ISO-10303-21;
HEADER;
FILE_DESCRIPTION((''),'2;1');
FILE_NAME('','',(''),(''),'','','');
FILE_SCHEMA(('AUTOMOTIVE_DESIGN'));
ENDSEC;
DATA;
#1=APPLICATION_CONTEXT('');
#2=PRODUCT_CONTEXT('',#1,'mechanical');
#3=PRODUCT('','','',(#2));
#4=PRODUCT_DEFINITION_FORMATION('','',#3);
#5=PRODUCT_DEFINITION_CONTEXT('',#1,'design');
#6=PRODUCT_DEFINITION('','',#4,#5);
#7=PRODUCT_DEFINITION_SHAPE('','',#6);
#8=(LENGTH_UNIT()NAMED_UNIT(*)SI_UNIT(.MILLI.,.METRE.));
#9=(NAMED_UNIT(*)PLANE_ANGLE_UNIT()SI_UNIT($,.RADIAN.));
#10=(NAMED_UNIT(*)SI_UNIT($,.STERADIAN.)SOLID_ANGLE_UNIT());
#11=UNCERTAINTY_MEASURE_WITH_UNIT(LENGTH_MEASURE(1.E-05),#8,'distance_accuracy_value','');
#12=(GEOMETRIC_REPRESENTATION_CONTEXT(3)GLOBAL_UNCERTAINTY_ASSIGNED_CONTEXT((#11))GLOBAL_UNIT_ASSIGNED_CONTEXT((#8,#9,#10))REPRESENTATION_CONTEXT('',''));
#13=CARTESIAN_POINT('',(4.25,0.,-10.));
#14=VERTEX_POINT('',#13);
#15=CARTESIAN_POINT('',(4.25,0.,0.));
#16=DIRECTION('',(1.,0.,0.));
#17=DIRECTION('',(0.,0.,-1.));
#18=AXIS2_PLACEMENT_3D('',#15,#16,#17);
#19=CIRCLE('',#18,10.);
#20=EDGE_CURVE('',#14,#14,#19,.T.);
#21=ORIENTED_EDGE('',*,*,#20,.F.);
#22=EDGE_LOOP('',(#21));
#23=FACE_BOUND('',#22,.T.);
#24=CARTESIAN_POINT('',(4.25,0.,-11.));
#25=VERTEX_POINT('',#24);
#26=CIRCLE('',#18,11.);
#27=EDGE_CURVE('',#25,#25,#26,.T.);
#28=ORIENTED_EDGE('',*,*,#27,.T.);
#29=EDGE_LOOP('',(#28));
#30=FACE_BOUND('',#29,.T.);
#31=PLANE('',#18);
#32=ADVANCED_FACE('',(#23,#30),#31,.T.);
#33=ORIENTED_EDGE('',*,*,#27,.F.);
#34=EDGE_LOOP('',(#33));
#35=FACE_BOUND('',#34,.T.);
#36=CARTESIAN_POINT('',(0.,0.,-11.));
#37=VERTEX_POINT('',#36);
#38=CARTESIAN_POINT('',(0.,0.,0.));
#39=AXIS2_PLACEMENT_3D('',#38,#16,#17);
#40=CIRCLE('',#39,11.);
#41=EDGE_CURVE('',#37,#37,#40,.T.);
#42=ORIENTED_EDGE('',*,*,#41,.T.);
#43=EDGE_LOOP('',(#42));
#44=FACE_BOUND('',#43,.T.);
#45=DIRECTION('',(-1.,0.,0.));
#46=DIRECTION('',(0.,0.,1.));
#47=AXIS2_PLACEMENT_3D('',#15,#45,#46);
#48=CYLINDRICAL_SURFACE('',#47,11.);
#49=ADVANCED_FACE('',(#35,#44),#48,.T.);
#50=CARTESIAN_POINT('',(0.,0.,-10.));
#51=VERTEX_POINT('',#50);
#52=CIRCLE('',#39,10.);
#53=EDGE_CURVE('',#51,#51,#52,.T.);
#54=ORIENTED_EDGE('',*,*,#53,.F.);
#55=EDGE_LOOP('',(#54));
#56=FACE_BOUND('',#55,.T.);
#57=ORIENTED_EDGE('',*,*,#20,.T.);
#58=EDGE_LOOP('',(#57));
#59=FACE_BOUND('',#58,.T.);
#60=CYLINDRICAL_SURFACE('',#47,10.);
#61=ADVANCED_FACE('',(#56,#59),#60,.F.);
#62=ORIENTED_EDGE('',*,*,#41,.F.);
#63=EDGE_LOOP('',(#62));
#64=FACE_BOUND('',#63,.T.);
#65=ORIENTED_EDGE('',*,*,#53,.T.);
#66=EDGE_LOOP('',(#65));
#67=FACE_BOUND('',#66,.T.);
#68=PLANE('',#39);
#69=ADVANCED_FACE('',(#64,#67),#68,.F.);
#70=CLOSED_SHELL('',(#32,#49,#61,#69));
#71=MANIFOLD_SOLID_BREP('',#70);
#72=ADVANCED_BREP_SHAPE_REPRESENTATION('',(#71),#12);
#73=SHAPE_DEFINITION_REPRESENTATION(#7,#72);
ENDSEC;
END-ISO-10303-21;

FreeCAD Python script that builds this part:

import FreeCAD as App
import Part
import Sketcher
from FreeCAD import Vector
Q = App.Units.Quantity

doc = App.newDocument("Part")
body = doc.addObject("PartDesign::Body", "Body")

sketch1 = body.newObject("Sketcher::SketchObject", "Sketch")
sketch1.AttachmentSupport = (doc.getObject("YZ_Plane"), [""])
sketch1.MapMode = "FlatFace"
sketch1.addGeometry([
    Part.Circle(Vector(0, 0, 0), Vector(0, 0, 1), 11),
    Part.Circle(Vector(0, 0, 0), Vector(0, 0, 1), 10),
], False)
sketch1.addConstraint([
    Sketcher.Constraint("Coincident", 0, 3, -1, 1),
    Sketcher.Constraint("Coincident", 1, 3, -1, 1),
    Sketcher.Constraint("Diameter", 0, Q("22 mm")),
    Sketcher.Constraint("Diameter", 1, Q("20 mm")),
])
pad1 = body.newObject("PartDesign::Pad", "Pad")
pad1.Profile = sketch1
pad1.Length = 4.25

doc.recompute()
